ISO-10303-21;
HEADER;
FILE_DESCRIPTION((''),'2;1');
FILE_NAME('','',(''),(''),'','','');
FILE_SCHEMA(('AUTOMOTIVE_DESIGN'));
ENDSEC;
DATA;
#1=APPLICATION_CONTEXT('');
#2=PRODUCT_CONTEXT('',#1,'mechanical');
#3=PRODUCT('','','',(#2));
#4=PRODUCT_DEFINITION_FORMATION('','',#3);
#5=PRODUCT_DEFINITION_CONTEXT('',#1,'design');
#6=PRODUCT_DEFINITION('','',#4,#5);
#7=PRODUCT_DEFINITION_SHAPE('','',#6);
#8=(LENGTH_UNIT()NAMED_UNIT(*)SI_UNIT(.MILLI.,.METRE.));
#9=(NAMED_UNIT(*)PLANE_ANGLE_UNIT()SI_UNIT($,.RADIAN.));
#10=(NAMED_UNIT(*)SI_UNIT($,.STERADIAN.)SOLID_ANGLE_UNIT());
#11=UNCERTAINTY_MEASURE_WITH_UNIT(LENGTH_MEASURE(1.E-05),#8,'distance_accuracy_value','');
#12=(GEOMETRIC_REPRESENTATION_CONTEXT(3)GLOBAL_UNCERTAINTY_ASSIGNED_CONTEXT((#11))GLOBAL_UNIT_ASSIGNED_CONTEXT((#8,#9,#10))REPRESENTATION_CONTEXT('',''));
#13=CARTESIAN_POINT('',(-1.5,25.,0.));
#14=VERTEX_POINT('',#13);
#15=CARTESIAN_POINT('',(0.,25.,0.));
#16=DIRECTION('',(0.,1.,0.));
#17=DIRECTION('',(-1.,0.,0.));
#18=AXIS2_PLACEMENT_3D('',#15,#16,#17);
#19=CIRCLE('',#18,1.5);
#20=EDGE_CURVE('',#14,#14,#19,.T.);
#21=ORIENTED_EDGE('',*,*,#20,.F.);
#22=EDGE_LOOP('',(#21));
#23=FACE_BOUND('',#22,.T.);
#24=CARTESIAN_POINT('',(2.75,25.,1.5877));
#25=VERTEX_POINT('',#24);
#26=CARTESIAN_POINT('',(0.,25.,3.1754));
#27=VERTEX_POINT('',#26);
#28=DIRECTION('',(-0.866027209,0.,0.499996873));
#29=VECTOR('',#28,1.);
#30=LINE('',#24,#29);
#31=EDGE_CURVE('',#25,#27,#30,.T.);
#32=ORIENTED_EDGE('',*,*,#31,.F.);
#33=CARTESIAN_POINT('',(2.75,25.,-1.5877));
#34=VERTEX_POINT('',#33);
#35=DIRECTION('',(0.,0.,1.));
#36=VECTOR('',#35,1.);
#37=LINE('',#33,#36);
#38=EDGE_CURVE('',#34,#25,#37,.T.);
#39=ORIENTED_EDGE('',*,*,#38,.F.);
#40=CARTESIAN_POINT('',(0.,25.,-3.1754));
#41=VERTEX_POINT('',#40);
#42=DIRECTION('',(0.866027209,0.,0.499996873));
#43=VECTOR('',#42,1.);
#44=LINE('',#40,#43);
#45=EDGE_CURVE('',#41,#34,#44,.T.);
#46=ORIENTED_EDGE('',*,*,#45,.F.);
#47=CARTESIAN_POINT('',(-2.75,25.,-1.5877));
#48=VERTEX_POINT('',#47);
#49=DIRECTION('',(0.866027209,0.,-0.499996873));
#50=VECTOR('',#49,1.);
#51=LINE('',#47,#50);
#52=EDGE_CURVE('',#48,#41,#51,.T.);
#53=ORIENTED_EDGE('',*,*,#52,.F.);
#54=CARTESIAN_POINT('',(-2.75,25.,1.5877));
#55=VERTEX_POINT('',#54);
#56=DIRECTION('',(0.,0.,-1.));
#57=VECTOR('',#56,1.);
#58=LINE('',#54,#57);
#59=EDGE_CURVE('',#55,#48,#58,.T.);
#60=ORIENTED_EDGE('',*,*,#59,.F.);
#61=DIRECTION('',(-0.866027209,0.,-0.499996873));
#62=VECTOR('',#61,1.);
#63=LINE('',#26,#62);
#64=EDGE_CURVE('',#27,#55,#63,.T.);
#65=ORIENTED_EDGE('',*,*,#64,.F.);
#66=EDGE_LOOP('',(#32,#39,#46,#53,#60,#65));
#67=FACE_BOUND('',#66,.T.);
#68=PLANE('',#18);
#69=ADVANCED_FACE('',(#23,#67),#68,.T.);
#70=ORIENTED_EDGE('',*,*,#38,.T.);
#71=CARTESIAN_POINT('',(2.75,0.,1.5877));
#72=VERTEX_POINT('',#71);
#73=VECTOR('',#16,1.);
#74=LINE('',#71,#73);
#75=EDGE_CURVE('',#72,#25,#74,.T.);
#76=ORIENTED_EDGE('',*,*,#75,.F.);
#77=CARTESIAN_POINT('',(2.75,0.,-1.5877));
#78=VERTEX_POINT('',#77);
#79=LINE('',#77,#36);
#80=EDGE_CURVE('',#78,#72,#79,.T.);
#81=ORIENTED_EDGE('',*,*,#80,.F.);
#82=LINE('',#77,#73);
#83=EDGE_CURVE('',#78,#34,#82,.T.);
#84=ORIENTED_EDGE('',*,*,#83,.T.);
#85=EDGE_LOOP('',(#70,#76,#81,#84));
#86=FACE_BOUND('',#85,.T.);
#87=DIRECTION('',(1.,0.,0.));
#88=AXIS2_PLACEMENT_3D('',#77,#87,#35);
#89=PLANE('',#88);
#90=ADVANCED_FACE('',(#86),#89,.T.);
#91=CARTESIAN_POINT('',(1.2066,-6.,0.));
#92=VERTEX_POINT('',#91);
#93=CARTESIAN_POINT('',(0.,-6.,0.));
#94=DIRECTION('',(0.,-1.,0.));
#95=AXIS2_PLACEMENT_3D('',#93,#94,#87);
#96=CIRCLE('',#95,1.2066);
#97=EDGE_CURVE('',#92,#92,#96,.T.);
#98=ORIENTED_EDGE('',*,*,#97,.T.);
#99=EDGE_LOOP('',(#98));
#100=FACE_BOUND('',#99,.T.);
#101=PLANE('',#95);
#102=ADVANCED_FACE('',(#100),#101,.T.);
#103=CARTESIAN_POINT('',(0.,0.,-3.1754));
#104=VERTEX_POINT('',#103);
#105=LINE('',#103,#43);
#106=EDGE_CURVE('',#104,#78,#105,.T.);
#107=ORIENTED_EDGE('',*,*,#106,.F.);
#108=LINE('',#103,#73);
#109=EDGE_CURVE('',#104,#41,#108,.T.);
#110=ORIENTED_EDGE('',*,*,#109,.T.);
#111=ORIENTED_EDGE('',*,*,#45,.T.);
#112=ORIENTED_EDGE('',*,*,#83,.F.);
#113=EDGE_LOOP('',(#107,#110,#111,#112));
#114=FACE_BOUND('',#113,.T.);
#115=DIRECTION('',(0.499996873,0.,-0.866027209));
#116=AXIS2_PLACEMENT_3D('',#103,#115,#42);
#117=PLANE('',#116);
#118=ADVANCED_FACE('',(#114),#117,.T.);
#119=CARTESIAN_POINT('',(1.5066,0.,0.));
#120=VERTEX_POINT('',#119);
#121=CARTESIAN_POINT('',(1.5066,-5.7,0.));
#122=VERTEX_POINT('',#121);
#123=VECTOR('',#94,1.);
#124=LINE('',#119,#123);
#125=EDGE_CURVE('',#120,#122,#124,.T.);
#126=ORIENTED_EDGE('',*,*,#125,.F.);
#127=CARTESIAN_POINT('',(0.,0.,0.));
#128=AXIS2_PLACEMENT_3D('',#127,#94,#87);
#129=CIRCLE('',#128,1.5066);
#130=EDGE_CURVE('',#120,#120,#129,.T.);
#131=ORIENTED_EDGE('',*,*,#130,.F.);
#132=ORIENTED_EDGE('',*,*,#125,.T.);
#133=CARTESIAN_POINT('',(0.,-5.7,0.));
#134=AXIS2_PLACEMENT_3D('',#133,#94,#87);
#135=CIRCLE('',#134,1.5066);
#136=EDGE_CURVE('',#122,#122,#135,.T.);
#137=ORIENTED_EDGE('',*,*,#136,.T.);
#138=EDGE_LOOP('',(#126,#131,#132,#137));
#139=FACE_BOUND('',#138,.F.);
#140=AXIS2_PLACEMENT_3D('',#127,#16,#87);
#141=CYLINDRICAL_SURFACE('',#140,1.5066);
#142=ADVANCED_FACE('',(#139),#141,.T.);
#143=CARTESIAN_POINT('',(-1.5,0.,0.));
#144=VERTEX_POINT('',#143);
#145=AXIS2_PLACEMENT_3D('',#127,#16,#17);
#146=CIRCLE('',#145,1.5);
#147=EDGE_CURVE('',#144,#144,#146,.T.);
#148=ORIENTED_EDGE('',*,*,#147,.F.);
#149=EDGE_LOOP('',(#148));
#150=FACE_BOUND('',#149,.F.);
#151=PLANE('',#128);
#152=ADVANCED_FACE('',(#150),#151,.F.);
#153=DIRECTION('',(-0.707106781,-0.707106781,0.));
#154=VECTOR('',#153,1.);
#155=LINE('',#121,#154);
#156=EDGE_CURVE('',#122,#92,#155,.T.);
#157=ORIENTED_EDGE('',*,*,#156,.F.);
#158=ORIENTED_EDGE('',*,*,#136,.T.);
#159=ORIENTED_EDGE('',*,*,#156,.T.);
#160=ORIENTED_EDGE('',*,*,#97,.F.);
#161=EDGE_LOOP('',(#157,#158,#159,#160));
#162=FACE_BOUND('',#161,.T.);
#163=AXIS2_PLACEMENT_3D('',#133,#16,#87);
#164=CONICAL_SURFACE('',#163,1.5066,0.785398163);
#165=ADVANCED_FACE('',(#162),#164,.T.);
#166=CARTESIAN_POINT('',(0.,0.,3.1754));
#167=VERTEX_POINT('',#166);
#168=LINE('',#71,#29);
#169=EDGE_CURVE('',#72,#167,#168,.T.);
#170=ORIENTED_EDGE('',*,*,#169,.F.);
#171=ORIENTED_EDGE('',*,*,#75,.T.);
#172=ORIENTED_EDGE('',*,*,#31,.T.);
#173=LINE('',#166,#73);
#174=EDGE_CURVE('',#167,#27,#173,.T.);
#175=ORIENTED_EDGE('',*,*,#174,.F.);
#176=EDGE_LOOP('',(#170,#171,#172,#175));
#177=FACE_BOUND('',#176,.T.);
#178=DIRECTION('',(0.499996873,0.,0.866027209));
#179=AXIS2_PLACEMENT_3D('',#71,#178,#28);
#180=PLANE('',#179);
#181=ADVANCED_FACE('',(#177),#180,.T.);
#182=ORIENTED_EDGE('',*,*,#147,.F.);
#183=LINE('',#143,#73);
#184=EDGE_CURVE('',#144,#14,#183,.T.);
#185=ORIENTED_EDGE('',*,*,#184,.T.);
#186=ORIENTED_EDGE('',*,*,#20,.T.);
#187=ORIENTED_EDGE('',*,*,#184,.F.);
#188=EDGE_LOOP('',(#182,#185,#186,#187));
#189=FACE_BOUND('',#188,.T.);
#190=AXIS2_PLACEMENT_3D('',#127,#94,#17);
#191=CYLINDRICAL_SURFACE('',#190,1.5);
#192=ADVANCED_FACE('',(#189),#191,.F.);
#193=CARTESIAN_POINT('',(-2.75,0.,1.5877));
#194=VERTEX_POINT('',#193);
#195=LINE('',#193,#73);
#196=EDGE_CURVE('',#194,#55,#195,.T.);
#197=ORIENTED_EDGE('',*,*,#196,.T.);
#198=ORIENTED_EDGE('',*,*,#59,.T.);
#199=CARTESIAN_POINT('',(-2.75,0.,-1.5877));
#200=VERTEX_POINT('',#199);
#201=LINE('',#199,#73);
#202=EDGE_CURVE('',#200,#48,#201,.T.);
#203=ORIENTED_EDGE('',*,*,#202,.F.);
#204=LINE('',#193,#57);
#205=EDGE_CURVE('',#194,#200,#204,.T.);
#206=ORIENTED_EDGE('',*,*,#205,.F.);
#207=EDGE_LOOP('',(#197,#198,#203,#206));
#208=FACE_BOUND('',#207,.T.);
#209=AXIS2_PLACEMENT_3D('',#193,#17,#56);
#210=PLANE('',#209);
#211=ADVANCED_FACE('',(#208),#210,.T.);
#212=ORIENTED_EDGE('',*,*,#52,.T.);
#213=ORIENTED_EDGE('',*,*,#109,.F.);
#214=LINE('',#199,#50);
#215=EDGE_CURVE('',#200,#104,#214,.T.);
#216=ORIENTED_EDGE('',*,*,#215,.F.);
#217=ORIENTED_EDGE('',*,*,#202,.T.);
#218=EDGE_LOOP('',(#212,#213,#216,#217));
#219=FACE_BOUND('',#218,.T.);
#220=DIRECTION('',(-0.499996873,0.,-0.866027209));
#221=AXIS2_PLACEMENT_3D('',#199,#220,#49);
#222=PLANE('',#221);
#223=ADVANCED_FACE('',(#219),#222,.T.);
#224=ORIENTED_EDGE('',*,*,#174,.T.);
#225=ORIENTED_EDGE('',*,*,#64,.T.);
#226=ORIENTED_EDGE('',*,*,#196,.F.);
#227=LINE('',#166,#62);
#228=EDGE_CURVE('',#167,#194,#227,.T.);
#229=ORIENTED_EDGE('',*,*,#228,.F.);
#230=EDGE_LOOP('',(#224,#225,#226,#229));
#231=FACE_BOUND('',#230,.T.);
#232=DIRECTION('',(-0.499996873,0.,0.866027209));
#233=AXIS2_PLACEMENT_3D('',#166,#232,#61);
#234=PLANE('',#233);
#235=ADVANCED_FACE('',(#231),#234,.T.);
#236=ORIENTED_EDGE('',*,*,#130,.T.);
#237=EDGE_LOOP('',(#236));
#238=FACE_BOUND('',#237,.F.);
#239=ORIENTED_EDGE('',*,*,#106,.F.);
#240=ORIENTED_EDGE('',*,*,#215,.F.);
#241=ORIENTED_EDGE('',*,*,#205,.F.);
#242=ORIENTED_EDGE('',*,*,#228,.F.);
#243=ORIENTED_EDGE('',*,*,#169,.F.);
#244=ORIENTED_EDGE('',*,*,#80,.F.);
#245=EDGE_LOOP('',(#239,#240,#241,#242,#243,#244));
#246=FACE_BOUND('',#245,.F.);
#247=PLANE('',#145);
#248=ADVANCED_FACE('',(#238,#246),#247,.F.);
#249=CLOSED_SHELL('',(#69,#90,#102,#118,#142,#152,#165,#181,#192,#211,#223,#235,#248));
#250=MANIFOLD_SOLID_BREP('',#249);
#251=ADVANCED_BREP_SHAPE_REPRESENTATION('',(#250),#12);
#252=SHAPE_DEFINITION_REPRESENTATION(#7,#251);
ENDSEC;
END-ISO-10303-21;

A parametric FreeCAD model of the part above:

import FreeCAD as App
import Part
import Sketcher
from FreeCAD import Vector
Q = App.Units.Quantity


def edges_at(feature, points):
    """Names of the edges that pass closest to the given points."""
    edges = feature.Shape.Edges
    near = lambda p: min(range(len(edges)), key=lambda i: edges[i].distToShape(Part.Vertex(*p))[0])
    return sorted({f"Edge{near(p) + 1}" for p in points})

doc = App.newDocument("Part")
body = doc.addObject("PartDesign::Body", "Body")

# Sketch on XZ plane
sketch1 = body.newObject("Sketcher::SketchObject", "Sketch")
sketch1.AttachmentSupport = (doc.getObject("XZ_Plane"), [""])
sketch1.MapMode = "FlatFace"
sketch1.addGeometry([
    Part.LineSegment(Vector(-2.8, 1.6, 0), Vector(0, 3.2, 0)),  # 0
    Part.LineSegment(Vector(0, 3.2, 0), Vector(2.8, 1.6, 0)),  # 1
    Part.LineSegment(Vector(2.8, 1.6, 0), Vector(2.8, -1.6, 0)),  # 2
    Part.LineSegment(Vector(2.8, -1.6, 0), Vector(0, -3.2, 0)),  # 3
    Part.LineSegment(Vector(0, -3.2, 0), Vector(-2.8, -1.6, 0)),  # 4
    Part.LineSegment(Vector(-2.8, -1.6, 0), Vector(-2.8, 1.6, 0)),  # 5
    Part.Circle(Vector(0, 0, 0), Vector(0, 0, 1), 1.5),  # 6
], False)
sketch1.addConstraint([
    Sketcher.Constraint("Coincident", 0, 2, 1, 1),
    Sketcher.Constraint("Coincident", 1, 2, 2, 1),
    Sketcher.Constraint("Coincident", 2, 2, 3, 1),
    Sketcher.Constraint("Coincident", 3, 2, 4, 1),
    Sketcher.Constraint("Coincident", 4, 2, 5, 1),
    Sketcher.Constraint("Coincident", 5, 2, 0, 1),
    Sketcher.Constraint("Vertical", 2),
    Sketcher.Constraint("Vertical", 5),
    Sketcher.Constraint("Coincident", 6, 3, -1, 1),
    Sketcher.Constraint("Symmetric", 0, 2, 3, 2, -1, 1),
    Sketcher.Constraint("Symmetric", 1, 2, 4, 2, -1, 1),
    Sketcher.Constraint("PointOnObject", 0, 2, -2),
    Sketcher.Constraint("Parallel", 0, 3),
    Sketcher.Constraint("Horizontal", 2, 2, 4, 2),
    Sketcher.Constraint("Diameter", 6, 3.0),
    Sketcher.Constraint("DistanceX", 4, 2, 2, 2, 5.5),
    Sketcher.Constraint("Angle", 0, Q("29.9998 deg")),
    Sketcher.Constraint("DistanceY", 2, 2, 2, 1, 3.1754),
])
pad1 = body.newObject("PartDesign::Pad", "Pad")
pad1.Profile = sketch1
pad1.Length = 25
pad1.Reversed = True

# Sketch on XZ plane
sketch2 = body.newObject("Sketcher::SketchObject", "Sketch001")
sketch2.AttachmentSupport = (doc.getObject("XZ_Plane"), [""])
sketch2.MapMode = "FlatFace"
sketch2.addGeometry(Part.Circle(Vector(0, 0, 0), Vector(0, 0, 1), 1.5), False)
sketch2.addConstraint([
    Sketcher.Constraint("Coincident", 0, 3, -1, 1),
    Sketcher.Constraint("Diameter", 0, 3.0132),
])
pad2 = body.newObject("PartDesign::Pad", "Pad001")
pad2.Profile = sketch2
pad2.Length = 6
doc.recompute()

chamfer = body.newObject("PartDesign::Chamfer", "Chamfer")
chamfer.Base = (pad2, edges_at(pad2, [(-1.507, -6, 0)]))
chamfer.Size = 0.3

doc.recompute()
